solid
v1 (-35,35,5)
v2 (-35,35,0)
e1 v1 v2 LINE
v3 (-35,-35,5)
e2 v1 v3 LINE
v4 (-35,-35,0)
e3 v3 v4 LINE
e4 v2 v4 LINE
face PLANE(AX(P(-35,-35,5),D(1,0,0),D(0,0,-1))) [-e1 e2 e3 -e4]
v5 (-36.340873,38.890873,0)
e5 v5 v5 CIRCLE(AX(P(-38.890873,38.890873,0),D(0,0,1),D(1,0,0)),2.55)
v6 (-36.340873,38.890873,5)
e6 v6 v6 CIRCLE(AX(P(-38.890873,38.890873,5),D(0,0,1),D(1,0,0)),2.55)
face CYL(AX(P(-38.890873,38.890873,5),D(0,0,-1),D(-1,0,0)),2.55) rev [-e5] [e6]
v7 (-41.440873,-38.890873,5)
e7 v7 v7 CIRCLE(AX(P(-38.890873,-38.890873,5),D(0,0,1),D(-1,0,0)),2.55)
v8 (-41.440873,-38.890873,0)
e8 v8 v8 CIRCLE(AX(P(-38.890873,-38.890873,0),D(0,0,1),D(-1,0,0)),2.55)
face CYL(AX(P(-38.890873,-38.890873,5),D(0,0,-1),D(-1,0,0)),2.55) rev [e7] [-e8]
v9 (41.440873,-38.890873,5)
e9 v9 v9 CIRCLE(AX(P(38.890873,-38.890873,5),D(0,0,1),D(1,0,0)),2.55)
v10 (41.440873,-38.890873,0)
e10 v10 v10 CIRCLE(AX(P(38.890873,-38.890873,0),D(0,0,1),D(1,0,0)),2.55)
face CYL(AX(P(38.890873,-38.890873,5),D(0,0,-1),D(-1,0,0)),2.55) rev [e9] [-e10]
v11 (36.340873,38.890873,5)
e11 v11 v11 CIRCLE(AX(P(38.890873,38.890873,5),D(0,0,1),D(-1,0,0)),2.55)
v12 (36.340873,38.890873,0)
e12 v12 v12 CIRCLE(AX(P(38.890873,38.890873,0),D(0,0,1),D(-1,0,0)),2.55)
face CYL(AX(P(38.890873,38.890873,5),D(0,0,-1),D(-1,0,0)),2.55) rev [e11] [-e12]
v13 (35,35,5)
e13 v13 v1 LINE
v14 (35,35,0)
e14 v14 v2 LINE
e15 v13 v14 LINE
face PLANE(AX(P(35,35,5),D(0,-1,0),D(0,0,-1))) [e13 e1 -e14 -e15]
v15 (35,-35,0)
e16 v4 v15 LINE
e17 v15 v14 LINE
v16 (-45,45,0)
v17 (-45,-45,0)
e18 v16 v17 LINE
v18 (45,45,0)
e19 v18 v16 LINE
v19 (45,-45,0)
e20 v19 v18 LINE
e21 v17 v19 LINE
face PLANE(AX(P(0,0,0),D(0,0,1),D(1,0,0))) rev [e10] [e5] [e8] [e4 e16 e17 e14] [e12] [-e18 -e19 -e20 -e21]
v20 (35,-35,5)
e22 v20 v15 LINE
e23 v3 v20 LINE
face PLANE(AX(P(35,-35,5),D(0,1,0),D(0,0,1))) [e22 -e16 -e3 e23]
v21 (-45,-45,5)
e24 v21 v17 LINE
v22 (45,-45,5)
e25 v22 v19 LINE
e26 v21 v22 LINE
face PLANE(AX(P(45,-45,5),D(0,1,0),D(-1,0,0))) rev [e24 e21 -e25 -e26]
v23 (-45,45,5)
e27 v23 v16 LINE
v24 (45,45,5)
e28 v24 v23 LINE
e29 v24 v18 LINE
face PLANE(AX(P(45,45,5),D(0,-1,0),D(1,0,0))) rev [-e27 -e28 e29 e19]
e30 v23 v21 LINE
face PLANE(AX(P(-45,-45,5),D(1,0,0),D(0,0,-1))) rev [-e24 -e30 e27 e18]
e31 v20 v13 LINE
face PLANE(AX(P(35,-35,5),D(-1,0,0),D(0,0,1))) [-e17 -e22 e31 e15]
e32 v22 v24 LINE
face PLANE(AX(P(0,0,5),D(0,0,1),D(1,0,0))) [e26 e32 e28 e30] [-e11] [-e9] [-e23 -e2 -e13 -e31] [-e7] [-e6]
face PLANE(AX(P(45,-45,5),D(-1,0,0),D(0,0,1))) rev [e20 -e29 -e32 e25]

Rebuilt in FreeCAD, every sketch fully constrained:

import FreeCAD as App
import Part
import Sketcher

V = App.Vector

doc = App.newDocument("Part")
body = doc.addObject("PartDesign::Body", "Body")

sketch1 = doc.addObject("Sketcher::SketchObject", "Sketch")
body.addObject(sketch1)
sketch1.AttachmentSupport = (doc.XY_Plane, [""])
sketch1.MapMode = "FlatFace"
sketch1.addGeometry([
    Part.LineSegment(V(-45, 45, 0), V(-45, -45, 0)),
    Part.LineSegment(V(-45, -45, 0), V(45, -45, 0)),
    Part.LineSegment(V(45, -45, 0), V(45, 45, 0)),
    Part.LineSegment(V(45, 45, 0), V(-45, 45, 0)),
    Part.Circle(V(-38.9, -38.9, 0), V(0, 0, 1), 2.5),
    Part.Circle(V(38.9, -38.9, 0), V(0, 0, 1), 2.5),
    Part.Circle(V(-38.9, 38.9, 0), V(0, 0, 1), 2.5),
    Part.LineSegment(V(35, -35, 0), V(-35, -35, 0)),
    Part.LineSegment(V(-35, -35, 0), V(-35, 35, 0)),
    Part.LineSegment(V(-35, 35, 0), V(35, 35, 0)),
    Part.LineSegment(V(35, 35, 0), V(35, -35, 0)),
    Part.Circle(V(38.9, 38.9, 0), V(0, 0, 1), 2.5),
], False)
sketch1.addConstraint([
    Sketcher.Constraint("Coincident", 0, 2, 1, 1),
    Sketcher.Constraint("Coincident", 1, 2, 2, 1),
    Sketcher.Constraint("Coincident", 2, 2, 3, 1),
    Sketcher.Constraint("Coincident", 3, 2, 0, 1),
    Sketcher.Constraint("Coincident", 7, 2, 8, 1),
    Sketcher.Constraint("Coincident", 8, 2, 9, 1),
    Sketcher.Constraint("Coincident", 9, 2, 10, 1),
    Sketcher.Constraint("Coincident", 10, 2, 7, 1),
    Sketcher.Constraint("Vertical", 0),
    Sketcher.Constraint("Horizontal", 1),
    Sketcher.Constraint("Vertical", 2),
    Sketcher.Constraint("Horizontal", 3),
    Sketcher.Constraint("Horizontal", 7),
    Sketcher.Constraint("Vertical", 8),
    Sketcher.Constraint("Horizontal", 9),
    Sketcher.Constraint("Vertical", 10),
    Sketcher.Constraint("Equal", 4, 5),
    Sketcher.Constraint("Equal", 5, 6),
    Sketcher.Constraint("Equal", 6, 11),
    Sketcher.Constraint("Symmetric", 5, 3, 6, 3, -1, 1),
    Sketcher.Constraint("Symmetric", 4, 3, 11, 3, -1, 1),
    Sketcher.Constraint("Symmetric", 0, 2, 2, 2, -1, 1),
    Sketcher.Constraint("Symmetric", 7, 2, 9, 2, -1, 1),
    Sketcher.Constraint("Symmetric", 4, 3, 5, 3, -2),
    Sketcher.Constraint("Equal", 3, 0),
    Sketcher.Constraint("Equal", 9, 8),
    Sketcher.Constraint("Diameter", 4, 5.1),
    Sketcher.Constraint("DistanceX", 1, 1, 1, 2, 90.0),
    Sketcher.Constraint("DistanceX", 7, 2, 7, 1, 70.0),
    Sketcher.Constraint("DistanceX", 4, 3, -1, 1, 38.890873),
    Sketcher.Constraint("DistanceY", 4, 3, -1, 1, 38.890873),
])
pad1 = doc.addObject("PartDesign::Pad", "Pad")
body.addObject(pad1)
pad1.Profile = sketch1
pad1.Length = 5

doc.recompute()
